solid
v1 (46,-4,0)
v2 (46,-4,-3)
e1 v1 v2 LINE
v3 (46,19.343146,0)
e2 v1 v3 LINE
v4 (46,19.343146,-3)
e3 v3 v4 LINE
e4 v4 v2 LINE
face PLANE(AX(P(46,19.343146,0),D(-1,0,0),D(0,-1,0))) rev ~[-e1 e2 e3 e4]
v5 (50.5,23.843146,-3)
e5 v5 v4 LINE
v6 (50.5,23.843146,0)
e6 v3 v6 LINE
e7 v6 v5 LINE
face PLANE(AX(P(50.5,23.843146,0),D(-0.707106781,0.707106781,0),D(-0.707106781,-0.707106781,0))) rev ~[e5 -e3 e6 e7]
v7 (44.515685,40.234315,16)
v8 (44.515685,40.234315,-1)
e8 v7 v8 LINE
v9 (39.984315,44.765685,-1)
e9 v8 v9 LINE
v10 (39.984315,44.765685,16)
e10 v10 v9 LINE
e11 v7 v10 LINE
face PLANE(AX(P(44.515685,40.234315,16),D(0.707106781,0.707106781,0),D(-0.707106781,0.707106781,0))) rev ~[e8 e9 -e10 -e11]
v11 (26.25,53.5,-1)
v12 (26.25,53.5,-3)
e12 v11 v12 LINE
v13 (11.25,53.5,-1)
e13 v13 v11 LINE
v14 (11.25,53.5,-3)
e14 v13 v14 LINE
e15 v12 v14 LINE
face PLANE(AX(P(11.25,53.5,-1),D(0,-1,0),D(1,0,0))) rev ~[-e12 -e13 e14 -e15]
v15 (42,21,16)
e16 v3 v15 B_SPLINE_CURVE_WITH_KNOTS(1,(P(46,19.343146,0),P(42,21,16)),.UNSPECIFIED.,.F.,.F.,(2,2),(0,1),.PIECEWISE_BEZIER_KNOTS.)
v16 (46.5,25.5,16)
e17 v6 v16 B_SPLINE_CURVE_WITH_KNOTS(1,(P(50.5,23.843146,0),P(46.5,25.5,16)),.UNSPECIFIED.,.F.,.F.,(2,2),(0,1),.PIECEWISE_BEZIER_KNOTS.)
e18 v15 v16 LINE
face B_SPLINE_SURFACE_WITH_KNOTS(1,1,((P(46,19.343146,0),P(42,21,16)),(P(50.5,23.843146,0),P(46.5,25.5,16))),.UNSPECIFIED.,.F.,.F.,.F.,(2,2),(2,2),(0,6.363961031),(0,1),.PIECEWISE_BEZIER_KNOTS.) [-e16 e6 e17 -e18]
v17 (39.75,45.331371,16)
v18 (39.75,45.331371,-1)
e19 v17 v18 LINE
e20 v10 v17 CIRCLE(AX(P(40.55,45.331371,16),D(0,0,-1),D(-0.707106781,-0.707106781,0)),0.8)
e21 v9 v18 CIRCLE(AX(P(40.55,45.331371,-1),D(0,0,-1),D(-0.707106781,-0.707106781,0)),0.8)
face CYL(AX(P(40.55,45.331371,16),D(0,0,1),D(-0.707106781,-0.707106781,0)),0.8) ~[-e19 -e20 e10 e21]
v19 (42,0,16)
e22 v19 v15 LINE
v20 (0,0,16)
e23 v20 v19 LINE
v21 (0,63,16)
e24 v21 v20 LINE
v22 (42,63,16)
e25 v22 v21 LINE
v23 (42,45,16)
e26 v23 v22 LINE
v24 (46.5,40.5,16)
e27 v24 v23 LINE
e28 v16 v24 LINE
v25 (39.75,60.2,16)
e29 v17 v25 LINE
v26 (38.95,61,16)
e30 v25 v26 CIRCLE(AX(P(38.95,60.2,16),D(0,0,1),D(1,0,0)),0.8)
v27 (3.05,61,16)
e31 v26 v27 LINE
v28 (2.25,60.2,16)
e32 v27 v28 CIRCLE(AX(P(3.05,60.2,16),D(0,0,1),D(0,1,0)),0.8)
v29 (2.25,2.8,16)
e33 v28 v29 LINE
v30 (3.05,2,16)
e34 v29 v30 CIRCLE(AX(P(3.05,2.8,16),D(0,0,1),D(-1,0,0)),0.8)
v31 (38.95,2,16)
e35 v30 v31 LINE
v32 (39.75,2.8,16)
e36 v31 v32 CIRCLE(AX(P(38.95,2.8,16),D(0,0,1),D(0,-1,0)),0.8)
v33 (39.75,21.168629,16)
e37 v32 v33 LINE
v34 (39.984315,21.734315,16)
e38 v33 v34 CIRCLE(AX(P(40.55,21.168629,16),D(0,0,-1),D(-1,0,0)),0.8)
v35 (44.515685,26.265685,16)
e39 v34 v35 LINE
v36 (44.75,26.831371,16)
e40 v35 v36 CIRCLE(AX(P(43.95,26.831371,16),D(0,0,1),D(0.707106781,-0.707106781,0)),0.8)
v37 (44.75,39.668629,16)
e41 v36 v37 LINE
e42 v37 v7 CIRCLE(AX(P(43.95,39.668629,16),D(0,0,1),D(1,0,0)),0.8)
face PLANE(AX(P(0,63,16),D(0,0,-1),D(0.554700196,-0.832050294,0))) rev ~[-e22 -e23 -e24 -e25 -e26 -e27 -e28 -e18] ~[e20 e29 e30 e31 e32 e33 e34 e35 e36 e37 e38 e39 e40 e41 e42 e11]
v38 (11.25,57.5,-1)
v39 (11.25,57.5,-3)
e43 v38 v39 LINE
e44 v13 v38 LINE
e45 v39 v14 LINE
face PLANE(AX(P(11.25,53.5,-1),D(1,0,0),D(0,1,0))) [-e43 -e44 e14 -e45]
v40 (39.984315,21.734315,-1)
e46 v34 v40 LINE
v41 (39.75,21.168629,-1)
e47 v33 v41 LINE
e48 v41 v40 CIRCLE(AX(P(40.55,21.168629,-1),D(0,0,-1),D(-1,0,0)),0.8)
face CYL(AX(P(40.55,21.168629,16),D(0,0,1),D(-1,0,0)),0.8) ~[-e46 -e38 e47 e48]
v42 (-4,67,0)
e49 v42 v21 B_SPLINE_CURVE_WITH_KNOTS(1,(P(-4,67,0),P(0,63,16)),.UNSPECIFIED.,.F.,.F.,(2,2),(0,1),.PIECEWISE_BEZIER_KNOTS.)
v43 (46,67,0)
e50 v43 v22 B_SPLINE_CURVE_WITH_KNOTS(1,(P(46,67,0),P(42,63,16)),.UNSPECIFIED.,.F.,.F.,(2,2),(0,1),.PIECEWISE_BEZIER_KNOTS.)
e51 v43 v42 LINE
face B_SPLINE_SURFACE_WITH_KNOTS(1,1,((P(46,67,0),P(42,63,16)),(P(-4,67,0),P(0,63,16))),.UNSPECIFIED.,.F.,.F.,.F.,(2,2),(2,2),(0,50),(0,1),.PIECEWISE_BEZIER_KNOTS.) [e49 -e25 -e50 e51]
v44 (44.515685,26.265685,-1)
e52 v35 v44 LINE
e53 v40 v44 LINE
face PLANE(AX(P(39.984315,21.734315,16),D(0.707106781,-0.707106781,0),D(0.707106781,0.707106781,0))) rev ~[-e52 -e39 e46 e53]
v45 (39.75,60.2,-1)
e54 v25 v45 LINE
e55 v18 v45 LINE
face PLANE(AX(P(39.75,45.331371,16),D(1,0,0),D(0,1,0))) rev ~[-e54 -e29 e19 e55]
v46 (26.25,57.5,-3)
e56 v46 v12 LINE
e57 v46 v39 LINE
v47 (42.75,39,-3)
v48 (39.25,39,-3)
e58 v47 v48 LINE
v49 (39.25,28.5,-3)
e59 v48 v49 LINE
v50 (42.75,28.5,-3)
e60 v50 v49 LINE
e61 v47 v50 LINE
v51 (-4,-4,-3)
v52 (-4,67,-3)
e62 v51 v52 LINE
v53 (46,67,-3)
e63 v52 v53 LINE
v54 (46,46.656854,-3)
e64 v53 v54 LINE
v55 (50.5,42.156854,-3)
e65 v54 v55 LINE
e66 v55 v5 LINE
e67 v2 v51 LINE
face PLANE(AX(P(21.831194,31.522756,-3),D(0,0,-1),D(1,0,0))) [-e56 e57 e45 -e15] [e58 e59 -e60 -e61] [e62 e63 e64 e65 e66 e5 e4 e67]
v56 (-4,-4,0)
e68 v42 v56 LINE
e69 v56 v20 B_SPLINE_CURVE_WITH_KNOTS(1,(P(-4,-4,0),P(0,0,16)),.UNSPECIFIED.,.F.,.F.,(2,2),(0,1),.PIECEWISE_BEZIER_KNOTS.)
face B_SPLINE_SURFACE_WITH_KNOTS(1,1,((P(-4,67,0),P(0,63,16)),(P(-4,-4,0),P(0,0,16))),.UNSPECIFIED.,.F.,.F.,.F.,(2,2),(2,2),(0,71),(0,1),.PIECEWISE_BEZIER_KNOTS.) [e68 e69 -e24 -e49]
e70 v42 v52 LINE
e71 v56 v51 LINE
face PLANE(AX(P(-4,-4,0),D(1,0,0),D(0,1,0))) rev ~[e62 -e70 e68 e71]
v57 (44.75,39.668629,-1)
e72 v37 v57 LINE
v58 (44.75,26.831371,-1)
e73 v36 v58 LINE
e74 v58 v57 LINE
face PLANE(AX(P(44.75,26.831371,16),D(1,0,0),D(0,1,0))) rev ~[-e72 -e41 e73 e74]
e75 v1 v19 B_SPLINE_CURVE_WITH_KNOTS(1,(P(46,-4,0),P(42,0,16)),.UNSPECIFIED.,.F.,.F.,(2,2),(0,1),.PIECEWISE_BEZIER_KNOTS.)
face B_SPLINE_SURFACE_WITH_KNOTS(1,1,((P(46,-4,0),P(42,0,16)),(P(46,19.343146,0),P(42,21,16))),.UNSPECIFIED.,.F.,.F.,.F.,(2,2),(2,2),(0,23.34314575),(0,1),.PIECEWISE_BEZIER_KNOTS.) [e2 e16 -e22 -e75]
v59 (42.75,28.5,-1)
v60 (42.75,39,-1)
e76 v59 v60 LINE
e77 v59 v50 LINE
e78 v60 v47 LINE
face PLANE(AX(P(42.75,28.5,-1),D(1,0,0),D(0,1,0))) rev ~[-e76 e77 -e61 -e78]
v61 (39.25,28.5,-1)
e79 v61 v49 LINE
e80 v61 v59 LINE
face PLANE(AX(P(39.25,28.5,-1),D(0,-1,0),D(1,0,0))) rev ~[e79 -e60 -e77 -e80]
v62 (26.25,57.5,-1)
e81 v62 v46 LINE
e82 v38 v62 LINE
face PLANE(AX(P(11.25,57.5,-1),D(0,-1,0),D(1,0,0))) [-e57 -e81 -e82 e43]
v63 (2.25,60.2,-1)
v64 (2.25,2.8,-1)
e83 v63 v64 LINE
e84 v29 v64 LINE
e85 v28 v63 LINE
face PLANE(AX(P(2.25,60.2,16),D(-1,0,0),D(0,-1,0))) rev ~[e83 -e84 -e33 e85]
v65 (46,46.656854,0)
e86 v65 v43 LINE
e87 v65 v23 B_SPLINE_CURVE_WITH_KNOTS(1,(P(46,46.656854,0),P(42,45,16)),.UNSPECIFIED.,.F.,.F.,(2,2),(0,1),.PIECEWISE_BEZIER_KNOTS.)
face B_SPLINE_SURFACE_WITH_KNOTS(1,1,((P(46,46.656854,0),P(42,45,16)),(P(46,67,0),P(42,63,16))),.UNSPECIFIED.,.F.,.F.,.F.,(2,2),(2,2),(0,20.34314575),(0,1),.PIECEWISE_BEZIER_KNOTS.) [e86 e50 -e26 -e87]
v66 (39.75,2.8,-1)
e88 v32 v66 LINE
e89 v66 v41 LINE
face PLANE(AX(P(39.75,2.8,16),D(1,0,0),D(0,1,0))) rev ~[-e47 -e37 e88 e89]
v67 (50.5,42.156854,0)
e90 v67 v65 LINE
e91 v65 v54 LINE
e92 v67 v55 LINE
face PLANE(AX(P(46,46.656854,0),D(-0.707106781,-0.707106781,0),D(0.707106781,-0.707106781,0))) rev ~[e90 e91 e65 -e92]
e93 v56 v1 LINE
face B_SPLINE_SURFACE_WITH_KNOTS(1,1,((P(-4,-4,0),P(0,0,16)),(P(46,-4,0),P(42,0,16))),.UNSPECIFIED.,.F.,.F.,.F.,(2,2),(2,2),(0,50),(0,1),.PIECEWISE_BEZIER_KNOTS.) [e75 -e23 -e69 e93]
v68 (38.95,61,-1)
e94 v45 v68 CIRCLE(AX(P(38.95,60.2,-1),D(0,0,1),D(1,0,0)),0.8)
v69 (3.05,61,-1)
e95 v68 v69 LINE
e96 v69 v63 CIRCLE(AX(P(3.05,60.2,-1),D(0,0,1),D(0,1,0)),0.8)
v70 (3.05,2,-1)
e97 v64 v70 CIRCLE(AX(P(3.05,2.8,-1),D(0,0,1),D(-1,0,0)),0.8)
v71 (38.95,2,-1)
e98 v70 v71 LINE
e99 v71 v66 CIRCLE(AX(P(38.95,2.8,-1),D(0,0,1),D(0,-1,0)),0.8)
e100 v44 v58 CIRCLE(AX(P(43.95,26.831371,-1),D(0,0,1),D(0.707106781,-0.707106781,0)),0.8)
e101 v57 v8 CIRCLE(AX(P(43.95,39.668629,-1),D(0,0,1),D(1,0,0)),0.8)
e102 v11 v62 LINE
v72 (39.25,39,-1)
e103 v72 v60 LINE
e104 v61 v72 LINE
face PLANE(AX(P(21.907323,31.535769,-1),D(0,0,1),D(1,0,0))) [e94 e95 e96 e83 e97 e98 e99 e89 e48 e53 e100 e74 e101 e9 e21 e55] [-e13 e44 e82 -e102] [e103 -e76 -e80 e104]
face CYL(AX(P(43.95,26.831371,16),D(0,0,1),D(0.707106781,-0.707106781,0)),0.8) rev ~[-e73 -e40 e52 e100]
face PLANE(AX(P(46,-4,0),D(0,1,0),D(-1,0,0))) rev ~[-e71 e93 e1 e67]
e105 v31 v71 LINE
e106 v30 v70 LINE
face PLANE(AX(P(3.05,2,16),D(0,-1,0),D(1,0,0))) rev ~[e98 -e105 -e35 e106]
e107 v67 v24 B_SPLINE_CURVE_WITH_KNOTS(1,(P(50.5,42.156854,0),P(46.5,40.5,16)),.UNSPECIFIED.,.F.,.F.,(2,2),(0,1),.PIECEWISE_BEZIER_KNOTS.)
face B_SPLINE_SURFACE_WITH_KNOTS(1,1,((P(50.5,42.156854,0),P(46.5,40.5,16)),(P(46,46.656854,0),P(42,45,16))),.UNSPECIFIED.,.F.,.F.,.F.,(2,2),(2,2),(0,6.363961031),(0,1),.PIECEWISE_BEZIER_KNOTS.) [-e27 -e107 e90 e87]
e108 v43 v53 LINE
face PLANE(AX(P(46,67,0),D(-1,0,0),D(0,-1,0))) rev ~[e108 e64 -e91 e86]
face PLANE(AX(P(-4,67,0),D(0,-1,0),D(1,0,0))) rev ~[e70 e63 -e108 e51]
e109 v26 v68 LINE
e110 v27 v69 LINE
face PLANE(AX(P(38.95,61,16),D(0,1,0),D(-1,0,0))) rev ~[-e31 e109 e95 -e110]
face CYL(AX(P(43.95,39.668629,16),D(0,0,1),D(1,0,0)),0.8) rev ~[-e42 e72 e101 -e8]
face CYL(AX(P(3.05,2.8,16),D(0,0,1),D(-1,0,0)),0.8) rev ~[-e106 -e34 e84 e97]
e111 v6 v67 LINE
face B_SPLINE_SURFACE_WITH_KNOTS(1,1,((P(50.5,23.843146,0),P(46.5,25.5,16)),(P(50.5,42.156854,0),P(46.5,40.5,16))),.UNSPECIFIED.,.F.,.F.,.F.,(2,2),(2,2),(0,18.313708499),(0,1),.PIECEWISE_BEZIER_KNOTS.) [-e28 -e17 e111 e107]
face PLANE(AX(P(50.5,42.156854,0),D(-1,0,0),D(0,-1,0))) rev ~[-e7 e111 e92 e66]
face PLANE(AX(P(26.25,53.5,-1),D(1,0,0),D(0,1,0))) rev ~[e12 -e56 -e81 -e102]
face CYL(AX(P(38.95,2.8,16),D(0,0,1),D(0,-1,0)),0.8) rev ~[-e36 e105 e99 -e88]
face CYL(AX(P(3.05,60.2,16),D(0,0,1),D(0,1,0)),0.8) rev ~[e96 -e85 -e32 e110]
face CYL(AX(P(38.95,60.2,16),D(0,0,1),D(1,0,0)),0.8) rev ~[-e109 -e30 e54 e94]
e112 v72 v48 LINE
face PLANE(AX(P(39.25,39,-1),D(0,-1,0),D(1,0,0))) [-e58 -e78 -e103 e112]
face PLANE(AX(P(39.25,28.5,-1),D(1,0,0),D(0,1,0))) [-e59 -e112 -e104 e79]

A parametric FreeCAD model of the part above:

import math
import FreeCAD as App
import Part
import Sketcher


def add_polygon(sketch, points):
    """Adds a closed chain of lines whose ends are joined by coincident constraints."""
    first, n = sketch.GeometryCount, len(points)
    for a, b in zip(points, points[1:] + points[:1]):
        sketch.addGeometry(Part.LineSegment(App.Vector(*a, 0), App.Vector(*b, 0)), False)
    for i in range(n):
        sketch.addConstraint(Sketcher.Constraint("Coincident", first + i, 2, first + (i + 1) % n, 1))

doc = App.newDocument("Part")
body = doc.addObject("PartDesign::Body", "Body")

sketch1 = body.newObject("Sketcher::SketchObject", "Sketch")
sketch1.AttachmentSupport = (doc.getObject("XY_Plane"), [""])
sketch1.MapMode = "FlatFace"
add_polygon(sketch1, [(-4, 67), (-4, -4), (46, -4), (46, 19), (50, 24), (50, 42), (46, 47), (46, 67)])
sketch1.addConstraint(Sketcher.Constraint("Vertical", 0))
sketch1.addConstraint(Sketcher.Constraint("Horizontal", 1))
sketch1.addConstraint(Sketcher.Constraint("Vertical", 2))
sketch1.addConstraint(Sketcher.Constraint("Vertical", 4))
sketch1.addConstraint(Sketcher.Constraint("Vertical", 6))
sketch1.addConstraint(Sketcher.Constraint("Horizontal", 7))
sketch1.addConstraint(Sketcher.Constraint("Perpendicular", 3, 5))
sketch1.addConstraint(Sketcher.Constraint("Vertical", 2, 2, 5, 2))
sketch1.addConstraint(Sketcher.Constraint("Equal", 3, 5))
sketch1.addConstraint(Sketcher.Constraint("DistanceX", 1, 1, 1, 2, 50.0))
sketch1.addConstraint(Sketcher.Constraint("DistanceY", 0, 2, 0, 1, 71.0))
sketch1.addConstraint(Sketcher.Constraint("DistanceX", 0, 2, -1, 1, 4.0))
sketch1.addConstraint(Sketcher.Constraint("DistanceY", 0, 2, -1, 1, 4.0))
sketch1.addConstraint(Sketcher.Constraint("DistanceX", -1, 1, 3, 2, 50.5))
sketch1.addConstraint(Sketcher.Constraint("DistanceY", 4, 1, 4, 2, 18.313709))
sketch1.addConstraint(Sketcher.Constraint("DistanceY", 2, 1, 2, 2, 23.343146))

sketch2 = body.newObject("Sketcher::SketchObject", "Sketch001")
sketch2.AttachmentSupport = (doc.getObject("XY_Plane"), [""])
sketch2.MapMode = "FlatFace"
sketch2.AttachmentOffset = App.Placement(App.Vector(0, 0, 16), App.Rotation())
add_polygon(sketch2, [(0, 63), (0, 0), (42, 0), (42, 21), (46, 26), (46, 40), (42, 45), (42, 63)])
sketch2.addConstraint(Sketcher.Constraint("Vertical", 0))
sketch2.addConstraint(Sketcher.Constraint("Horizontal", 1))
sketch2.addConstraint(Sketcher.Constraint("Vertical", 2))
sketch2.addConstraint(Sketcher.Constraint("Vertical", 4))
sketch2.addConstraint(Sketcher.Constraint("Vertical", 6))
sketch2.addConstraint(Sketcher.Constraint("Horizontal", 7))
sketch2.addConstraint(Sketcher.Constraint("Coincident", 0, 2, -1, 1))
sketch2.addConstraint(Sketcher.Constraint("Perpendicular", 3, 5))
sketch2.addConstraint(Sketcher.Constraint("Vertical", 2, 2, 5, 2))
sketch2.addConstraint(Sketcher.Constraint("Equal", 3, 5))
sketch2.addConstraint(Sketcher.Constraint("DistanceX", 1, 1, 1, 2, 42.0))
sketch2.addConstraint(Sketcher.Constraint("DistanceY", 0, 2, 0, 1, 63.0))
sketch2.addConstraint(Sketcher.Constraint("DistanceY", 2, 1, 2, 2, 21.0))
sketch2.addConstraint(Sketcher.Constraint("DistanceY", 4, 1, 4, 2, 15.0))
sketch2.addConstraint(Sketcher.Constraint("DistanceY", 6, 1, 6, 2, 18.0))

additiveloft = body.newObject("PartDesign::AdditiveLoft", "AdditiveLoft")
additiveloft.Profile = sketch1
additiveloft.Sections = [sketch2]

sketch3 = body.newObject("Sketcher::SketchObject", "Sketch002")
sketch3.AttachmentSupport = (doc.getObject("XY_Plane"), [""])
sketch3.MapMode = "FlatFace"
add_polygon(sketch3, [(46, -4), (-4, -4), (-4, 67), (46, 67), (46, 47), (50, 42), (50, 24), (46, 19)])
sketch3.addConstraint(Sketcher.Constraint("Horizontal", 0))
sketch3.addConstraint(Sketcher.Constraint("Vertical", 1))
sketch3.addConstraint(Sketcher.Constraint("Horizontal", 2))
sketch3.addConstraint(Sketcher.Constraint("Vertical", 3))
sketch3.addConstraint(Sketcher.Constraint("Vertical", 5))
sketch3.addConstraint(Sketcher.Constraint("Vertical", 7))
sketch3.addConstraint(Sketcher.Constraint("Perpendicular", 4, 6))
sketch3.addConstraint(Sketcher.Constraint("Vertical", 3, 2, 6, 2))
sketch3.addConstraint(Sketcher.Constraint("Equal", 4, 6))
sketch3.addConstraint(Sketcher.Constraint("DistanceX", 0, 2, 0, 1, 50.0))
sketch3.addConstraint(Sketcher.Constraint("DistanceY", 1, 1, 1, 2, 71.0))
sketch3.addConstraint(Sketcher.Constraint("DistanceX", 0, 2, -1, 1, 4.0))
sketch3.addConstraint(Sketcher.Constraint("DistanceY", 0, 2, -1, 1, 4.0))
sketch3.addConstraint(Sketcher.Constraint("DistanceX", -1, 1, 4, 2, 50.5))
sketch3.addConstraint(Sketcher.Constraint("DistanceY", 5, 2, 5, 1, 18.313709))
sketch3.addConstraint(Sketcher.Constraint("DistanceY", 3, 2, 3, 1, 20.343146))
pad1 = body.newObject("PartDesign::Pad", "Pad")
pad1.Profile = sketch3
pad1.Length = 3
pad1.Reversed = True

sketch4 = body.newObject("Sketcher::SketchObject", "Sketch003")
sketch4.AttachmentSupport = (doc.getObject("XY_Plane"), [""])
sketch4.MapMode = "FlatFace"
sketch4.AttachmentOffset = App.Placement(App.Vector(0, 0, 16), App.Rotation())
sketch4.addGeometry(Part.LineSegment(App.Vector(39, 61, 0), App.Vector(3, 61, 0)), False)
sketch4.addGeometry(Part.ArcOfCircle(Part.Circle(App.Vector(3, 60.2, 0), App.Vector(0, 0, 1), 0.8), math.radians(90), math.radians(180)), False)
sketch4.addGeometry(Part.LineSegment(App.Vector(2.2, 60.2, 0), App.Vector(2.2, 2.8, 0)), False)
sketch4.addGeometry(Part.ArcOfCircle(Part.Circle(App.Vector(3, 2.8, 0), App.Vector(0, 0, 1), 0.8), math.radians(180), math.radians(270)), False)
sketch4.addGeometry(Part.LineSegment(App.Vector(3, 2, 0), App.Vector(39, 2, 0)), False)
sketch4.addGeometry(Part.ArcOfCircle(Part.Circle(App.Vector(39, 2.8, 0), App.Vector(0, 0, 1), 0.8), math.radians(-90), math.radians(0)), False)
sketch4.addGeometry(Part.LineSegment(App.Vector(39.8, 2.8, 0), App.Vector(39.8, 21.2, 0)), False)
sketch4.addGeometry(Part.ArcOfCircle(Part.Circle(App.Vector(40.5, 21.2, 0), App.Vector(0, 0, 1), 0.8), math.radians(135), math.radians(180)), False)
sketch4.addGeometry(Part.LineSegment(App.Vector(40, 21.7, 0), App.Vector(44.5, 26.3, 0)), False)
sketch4.addGeometry(Part.ArcOfCircle(Part.Circle(App.Vector(44, 26.8, 0), App.Vector(0, 0, 1), 0.8), math.radians(-45), math.radians(0)), False)
sketch4.addGeometry(Part.LineSegment(App.Vector(44.8, 26.8, 0), App.Vector(44.8, 39.7, 0)), False)
sketch4.addGeometry(Part.ArcOfCircle(Part.Circle(App.Vector(44, 39.7, 0), App.Vector(0, 0, 1), 0.8), math.radians(0), math.radians(45)), False)
sketch4.addGeometry(Part.LineSegment(App.Vector(44.5, 40.2, 0), App.Vector(40, 44.8, 0)), False)
sketch4.addGeometry(Part.ArcOfCircle(Part.Circle(App.Vector(40.5, 45.3, 0), App.Vector(0, 0, 1), 0.8), math.radians(180), math.radians(225)), False)
sketch4.addGeometry(Part.LineSegment(App.Vector(39.8, 45.3, 0), App.Vector(39.8, 60.2, 0)), False)
sketch4.addGeometry(Part.ArcOfCircle(Part.Circle(App.Vector(39, 60.2, 0), App.Vector(0, 0, 1), 0.8), math.radians(0), math.radians(90)), False)
sketch4.addConstraint(Sketcher.Constraint("Tangent", 0, 2, 1, 1))
sketch4.addConstraint(Sketcher.Constraint("Tangent", 1, 2, 2, 1))
sketch4.addConstraint(Sketcher.Constraint("Tangent", 2, 2, 3, 1))
sketch4.addConstraint(Sketcher.Constraint("Tangent", 3, 2, 4, 1))
sketch4.addConstraint(Sketcher.Constraint("Tangent", 4, 2, 5, 1))
sketch4.addConstraint(Sketcher.Constraint("Tangent", 5, 2, 6, 1))
sketch4.addConstraint(Sketcher.Constraint("Tangent", 6, 2, 7, 2))
sketch4.addConstraint(Sketcher.Constraint("Tangent", 7, 1, 8, 1))
sketch4.addConstraint(Sketcher.Constraint("Tangent", 8, 2, 9, 1))
sketch4.addConstraint(Sketcher.Constraint("Tangent", 9, 2, 10, 1))
sketch4.addConstraint(Sketcher.Constraint("Tangent", 10, 2, 11, 1))
sketch4.addConstraint(Sketcher.Constraint("Tangent", 11, 2, 12, 1))
sketch4.addConstraint(Sketcher.Constraint("Tangent", 12, 2, 13, 2))
sketch4.addConstraint(Sketcher.Constraint("Tangent", 13, 1, 14, 1))
sketch4.addConstraint(Sketcher.Constraint("Tangent", 14, 2, 15, 1))
sketch4.addConstraint(Sketcher.Constraint("Tangent", 15, 2, 0, 1))
sketch4.addConstraint(Sketcher.Constraint("Horizontal", 0))
sketch4.addConstraint(Sketcher.Constraint("Vertical", 2))
sketch4.addConstraint(Sketcher.Constraint("Horizontal", 4))
sketch4.addConstraint(Sketcher.Constraint("Vertical", 6))
sketch4.addConstraint(Sketcher.Constraint("Vertical", 10))
sketch4.addConstraint(Sketcher.Constraint("Vertical", 14))
sketch4.addConstraint(Sketcher.Constraint("Equal", 1, 3))
sketch4.addConstraint(Sketcher.Constraint("Equal", 3, 5))
sketch4.addConstraint(Sketcher.Constraint("Equal", 5, 7))
sketch4.addConstraint(Sketcher.Constraint("Equal", 7, 9))
sketch4.addConstraint(Sketcher.Constraint("Equal", 9, 11))
sketch4.addConstraint(Sketcher.Constraint("Equal", 11, 13))
sketch4.addConstraint(Sketcher.Constraint("Equal", 13, 15))
sketch4.addConstraint(Sketcher.Constraint("Perpendicular", 8, 12))
sketch4.addConstraint(Sketcher.Constraint("Vertical", 7, 3, 13, 3))
sketch4.addConstraint(Sketcher.Constraint("Vertical", 8, 2, 11, 2))
sketch4.addConstraint(Sketcher.Constraint("Radius", 1, 0.8))
sketch4.addConstraint(Sketcher.Constraint("DistanceX", 0, 2, 0, 1, 35.9))
sketch4.addConstraint(Sketcher.Constraint("DistanceY", 2, 2, 2, 1, 57.4))
sketch4.addConstraint(Sketcher.Constraint("DistanceY", -1, 1, 0, 2, 61.0))
sketch4.addConstraint(Sketcher.Constraint("DistanceX", 5, 3, 9, 3, 5.0))
sketch4.addConstraint(Sketcher.Constraint("DistanceY", 7, 3, 11, 3, 18.5))
sketch4.addConstraint(Sketcher.Constraint("DistanceX", -1, 1, 1, 3, 3.05))
sketch4.addConstraint(Sketcher.Constraint("DistanceY", 6, 1, 6, 2, 18.368629))
pocket1 = body.newObject("PartDesign::Pocket", "Pocket")
pocket1.Profile = sketch4
pocket1.Length = 17

sketch5 = body.newObject("Sketcher::SketchObject", "Sketch004")
sketch5.AttachmentSupport = (doc.getObject("XY_Plane"), [""])
sketch5.MapMode = "FlatFace"
sketch5.AttachmentOffset = App.Placement(App.Vector(0, 0, -1), App.Rotation())
add_polygon(sketch5, [(11.2, 57.5), (11.2, 53.5), (26.2, 53.5), (26.2, 57.5)])
add_polygon(sketch5, [(39.2, 39), (39.2, 28.5), (42.8, 28.5), (42.8, 39)])
sketch5.addConstraint(Sketcher.Constraint("Vertical", 0))
sketch5.addConstraint(Sketcher.Constraint("Horizontal", 1))
sketch5.addConstraint(Sketcher.Constraint("Vertical", 2))
sketch5.addConstraint(Sketcher.Constraint("Horizontal", 3))
sketch5.addConstraint(Sketcher.Constraint("Vertical", 4))
sketch5.addConstraint(Sketcher.Constraint("Horizontal", 5))
sketch5.addConstraint(Sketcher.Constraint("Vertical", 6))
sketch5.addConstraint(Sketcher.Constraint("Horizontal", 7))
sketch5.addConstraint(Sketcher.Constraint("DistanceX", 1, 1, 1, 2, 15.0))
sketch5.addConstraint(Sketcher.Constraint("DistanceY", 0, 2, 0, 1, 4.0))
sketch5.addConstraint(Sketcher.Constraint("DistanceX", 5, 1, 5, 2, 3.5))
sketch5.addConstraint(Sketcher.Constraint("DistanceY", 4, 2, 4, 1, 10.5))
sketch5.addConstraint(Sketcher.Constraint("DistanceY", -1, 1, 6, 2, 39.0))
sketch5.addConstraint(Sketcher.Constraint("DistanceX", 1, 2, 4, 2, 13.0))
sketch5.addConstraint(Sketcher.Constraint("DistanceY", 4, 2, 1, 2, 25.0))
sketch5.addConstraint(Sketcher.Constraint("DistanceX", -1, 1, 0, 2, 11.25))
pocket2 = body.newObject("PartDesign::Pocket", "Pocket001")
pocket2.Profile = sketch5
pocket2.Type = "ThroughAll"

doc.recompute()
